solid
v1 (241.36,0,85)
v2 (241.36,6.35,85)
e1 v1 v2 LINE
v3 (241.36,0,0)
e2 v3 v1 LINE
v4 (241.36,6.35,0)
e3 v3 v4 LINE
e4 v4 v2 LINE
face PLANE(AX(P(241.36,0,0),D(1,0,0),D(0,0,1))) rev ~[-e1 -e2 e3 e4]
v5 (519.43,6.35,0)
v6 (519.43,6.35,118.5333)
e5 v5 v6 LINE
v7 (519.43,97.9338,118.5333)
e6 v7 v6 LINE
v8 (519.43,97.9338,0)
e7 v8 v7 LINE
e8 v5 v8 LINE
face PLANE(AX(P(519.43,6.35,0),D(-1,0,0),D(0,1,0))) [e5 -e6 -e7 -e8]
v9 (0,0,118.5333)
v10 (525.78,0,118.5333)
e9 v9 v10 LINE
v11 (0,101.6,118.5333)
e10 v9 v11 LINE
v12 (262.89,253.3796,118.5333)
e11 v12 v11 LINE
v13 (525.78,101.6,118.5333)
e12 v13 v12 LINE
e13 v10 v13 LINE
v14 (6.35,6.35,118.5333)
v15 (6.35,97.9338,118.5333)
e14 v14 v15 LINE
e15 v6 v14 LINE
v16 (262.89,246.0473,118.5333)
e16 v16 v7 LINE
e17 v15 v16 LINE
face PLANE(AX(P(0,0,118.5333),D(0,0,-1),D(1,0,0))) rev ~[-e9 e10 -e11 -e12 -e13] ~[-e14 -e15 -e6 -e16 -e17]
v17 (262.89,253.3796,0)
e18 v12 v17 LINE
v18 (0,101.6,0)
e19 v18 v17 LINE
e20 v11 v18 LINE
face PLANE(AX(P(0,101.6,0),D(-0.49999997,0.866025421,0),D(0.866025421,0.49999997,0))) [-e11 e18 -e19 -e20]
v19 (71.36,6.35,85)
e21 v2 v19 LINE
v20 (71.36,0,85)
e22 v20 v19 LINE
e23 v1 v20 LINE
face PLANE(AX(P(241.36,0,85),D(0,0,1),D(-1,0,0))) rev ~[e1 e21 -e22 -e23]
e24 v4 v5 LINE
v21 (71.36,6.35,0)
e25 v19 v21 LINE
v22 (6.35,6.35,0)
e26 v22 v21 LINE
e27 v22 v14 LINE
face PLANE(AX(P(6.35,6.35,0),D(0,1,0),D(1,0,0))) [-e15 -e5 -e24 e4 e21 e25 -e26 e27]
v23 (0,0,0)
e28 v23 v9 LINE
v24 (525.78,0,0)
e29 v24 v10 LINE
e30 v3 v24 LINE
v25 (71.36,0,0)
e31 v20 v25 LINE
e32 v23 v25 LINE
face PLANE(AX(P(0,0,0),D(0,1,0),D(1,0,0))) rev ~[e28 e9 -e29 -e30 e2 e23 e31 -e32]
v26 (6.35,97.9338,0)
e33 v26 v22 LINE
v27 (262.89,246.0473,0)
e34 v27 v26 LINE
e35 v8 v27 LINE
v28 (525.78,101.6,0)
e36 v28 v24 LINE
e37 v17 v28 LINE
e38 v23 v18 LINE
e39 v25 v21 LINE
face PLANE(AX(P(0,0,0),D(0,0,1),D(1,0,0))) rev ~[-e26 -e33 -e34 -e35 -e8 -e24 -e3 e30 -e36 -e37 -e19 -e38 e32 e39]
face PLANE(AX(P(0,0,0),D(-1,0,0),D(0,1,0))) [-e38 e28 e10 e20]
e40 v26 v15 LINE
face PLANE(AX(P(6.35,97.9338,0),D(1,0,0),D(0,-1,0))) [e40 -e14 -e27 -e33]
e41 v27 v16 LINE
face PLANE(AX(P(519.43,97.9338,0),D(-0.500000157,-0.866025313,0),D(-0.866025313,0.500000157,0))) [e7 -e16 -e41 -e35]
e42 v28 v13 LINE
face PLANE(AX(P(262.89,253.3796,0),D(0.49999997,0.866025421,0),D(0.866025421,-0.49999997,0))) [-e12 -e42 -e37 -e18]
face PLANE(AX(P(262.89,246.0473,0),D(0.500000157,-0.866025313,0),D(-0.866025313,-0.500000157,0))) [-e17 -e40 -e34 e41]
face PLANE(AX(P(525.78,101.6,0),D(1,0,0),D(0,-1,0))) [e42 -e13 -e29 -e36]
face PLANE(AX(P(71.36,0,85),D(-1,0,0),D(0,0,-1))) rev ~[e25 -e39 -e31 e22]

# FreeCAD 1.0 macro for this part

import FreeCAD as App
import Part
import Sketcher
Q = App.Units.Quantity

doc = App.newDocument("Part")
body = doc.addObject("PartDesign::Body", "Body")

sketch1 = doc.addObject("Sketcher::SketchObject", "Sketch")
body.addObject(sketch1)
sketch1.AttachmentSupport = (doc.XY_Plane, [""])
sketch1.MapMode = "FlatFace"
sketch1.addGeometry(Part.LineSegment(App.Vector(0, 102, 0), App.Vector(0, 0, 0)), False)
sketch1.addGeometry(Part.LineSegment(App.Vector(0, 0, 0), App.Vector(526, 0, 0)), False)
sketch1.addGeometry(Part.LineSegment(App.Vector(526, 0, 0), App.Vector(526, 102, 0)), False)
sketch1.addGeometry(Part.LineSegment(App.Vector(526, 102, 0), App.Vector(263, 253, 0)), False)
sketch1.addGeometry(Part.LineSegment(App.Vector(263, 253, 0), App.Vector(0, 102, 0)), False)
sketch1.addGeometry(Part.LineSegment(App.Vector(6, 98, 0), App.Vector(263, 246, 0)), False)
sketch1.addGeometry(Part.LineSegment(App.Vector(263, 246, 0), App.Vector(519, 98, 0)), False)
sketch1.addGeometry(Part.LineSegment(App.Vector(519, 98, 0), App.Vector(519, 6, 0)), False)
sketch1.addGeometry(Part.LineSegment(App.Vector(519, 6, 0), App.Vector(6, 6, 0)), False)
sketch1.addGeometry(Part.LineSegment(App.Vector(6, 6, 0), App.Vector(6, 98, 0)), False)
sketch1.addConstraint(Sketcher.Constraint("Coincident", 0, 2, 1, 1))
sketch1.addConstraint(Sketcher.Constraint("Coincident", 1, 2, 2, 1))
sketch1.addConstraint(Sketcher.Constraint("Coincident", 2, 2, 3, 1))
sketch1.addConstraint(Sketcher.Constraint("Coincident", 3, 2, 4, 1))
sketch1.addConstraint(Sketcher.Constraint("Coincident", 4, 2, 0, 1))
sketch1.addConstraint(Sketcher.Constraint("Coincident", 5, 2, 6, 1))
sketch1.addConstraint(Sketcher.Constraint("Coincident", 6, 2, 7, 1))
sketch1.addConstraint(Sketcher.Constraint("Coincident", 7, 2, 8, 1))
sketch1.addConstraint(Sketcher.Constraint("Coincident", 8, 2, 9, 1))
sketch1.addConstraint(Sketcher.Constraint("Coincident", 9, 2, 5, 1))
sketch1.addConstraint(Sketcher.Constraint("Vertical", 0))
sketch1.addConstraint(Sketcher.Constraint("Horizontal", 1))
sketch1.addConstraint(Sketcher.Constraint("Vertical", 2))
sketch1.addConstraint(Sketcher.Constraint("Vertical", 7))
sketch1.addConstraint(Sketcher.Constraint("Horizontal", 8))
sketch1.addConstraint(Sketcher.Constraint("Vertical", 9))
sketch1.addConstraint(Sketcher.Constraint("Coincident", 0, 2, -1, 1))
sketch1.addConstraint(Sketcher.Constraint("Parallel", 4, 5))
sketch1.addConstraint(Sketcher.Constraint("Parallel", 3, 6))
sketch1.addConstraint(Sketcher.Constraint("Horizontal", 2, 2, 4, 2))
sketch1.addConstraint(Sketcher.Constraint("Horizontal", 6, 2, 9, 2))
sketch1.addConstraint(Sketcher.Constraint("Vertical", 3, 2, 5, 2))
sketch1.addConstraint(Sketcher.Constraint("Equal", 3, 4))
sketch1.addConstraint(Sketcher.Constraint("DistanceY", 0, 2, 0, 1, Q("4 in")))
sketch1.addConstraint(Sketcher.Constraint("DistanceX", 1, 1, 1, 2, Q("20.7 in")))
sketch1.addConstraint(Sketcher.Constraint("DistanceY", -1, 1, 7, 2, Q("0.25 in")))
sketch1.addConstraint(Sketcher.Constraint("DistanceX", -1, 1, 8, 2, Q("0.25 in")))
sketch1.addConstraint(Sketcher.Constraint("Angle", 3, Q("150 deg")))
sketch1.addConstraint(Sketcher.Constraint("DistanceY", 7, 2, 7, 1, 91.5838))
pad1 = doc.addObject("PartDesign::Pad", "Pad")
body.addObject(pad1)
pad1.Profile = sketch1
pad1.Length = Q("14 in")

sketch2 = doc.addObject("Sketcher::SketchObject", "Sketch001")
body.addObject(sketch2)
sketch2.AttachmentSupport = (doc.XY_Plane, [""])
sketch2.MapMode = "FlatFace"
sketch2.AttachmentOffset = App.Placement(App.Vector(0, 0, 14 * 25.4), App.Rotation())
sketch2.addGeometry(Part.LineSegment(App.Vector(0, 102, 0), App.Vector(0, 0, 0)), False)
sketch2.addGeometry(Part.LineSegment(App.Vector(0, 0, 0), App.Vector(526, 0, 0)), False)
sketch2.addGeometry(Part.LineSegment(App.Vector(526, 0, 0), App.Vector(526, 102, 0)), False)
sketch2.addGeometry(Part.LineSegment(App.Vector(526, 102, 0), App.Vector(263, 253, 0)), False)
sketch2.addGeometry(Part.LineSegment(App.Vector(263, 253, 0), App.Vector(0, 102, 0)), False)
sketch2.addGeometry(Part.Circle(App.Vector(263, 121, 0), App.Vector(0, 0, 1), 60), False)
sketch2.addConstraint(Sketcher.Constraint("Coincident", 0, 2, 1, 1))
sketch2.addConstraint(Sketcher.Constraint("Coincident", 1, 2, 2, 1))
sketch2.addConstraint(Sketcher.Constraint("Coincident", 2, 2, 3, 1))
sketch2.addConstraint(Sketcher.Constraint("Coincident", 3, 2, 4, 1))
sketch2.addConstraint(Sketcher.Constraint("Coincident", 4, 2, 0, 1))
sketch2.addConstraint(Sketcher.Constraint("Vertical", 0))
sketch2.addConstraint(Sketcher.Constraint("Horizontal", 1))
sketch2.addConstraint(Sketcher.Constraint("Vertical", 2))
sketch2.addConstraint(Sketcher.Constraint("Coincident", 0, 2, -1, 1))
sketch2.addConstraint(Sketcher.Constraint("Horizontal", 2, 2, 4, 2))
sketch2.addConstraint(Sketcher.Constraint("Vertical", 5, 3, 3, 2))
sketch2.addConstraint(Sketcher.Constraint("Equal", 3, 4))
sketch2.addConstraint(Sketcher.Constraint("Diameter", 5, Q("4.7244 in")))
sketch2.addConstraint(Sketcher.Constraint("DistanceY", 0, 2, 0, 1, Q("4 in")))
sketch2.addConstraint(Sketcher.Constraint("DistanceX", 1, 1, 1, 2, Q("20.7 in")))
sketch2.addConstraint(Sketcher.Constraint("Angle", 3, Q("150 deg")))
sketch2.addConstraint(Sketcher.Constraint("DistanceY", 5, 3, 3, 2, 132.0))
pad2 = doc.addObject("PartDesign::Pad", "Pad001")
body.addObject(pad2)
pad2.Profile = sketch2
pad2.Length = Q("0.25 in")

sketch3 = doc.addObject("Sketcher::SketchObject", "Sketch002")
body.addObject(sketch3)
sketch3.AttachmentSupport = (doc.XZ_Plane, [""])
sketch3.MapMode = "FlatFace"
sketch3.addGeometry(Part.Circle(App.Vector(86.4, 44.5, 0), App.Vector(0, 0, 1), 2.4), False)
sketch3.addGeometry(Part.Circle(App.Vector(86.4, 21.9, 0), App.Vector(0, 0, 1), 2.4), False)
sketch3.addGeometry(Part.Circle(App.Vector(86.4, 67, 0), App.Vector(0, 0, 1), 2.4), False)
sketch3.addGeometry(Part.Circle(App.Vector(226.4, 67, 0), App.Vector(0, 0, 1), 2.4), False)
sketch3.addGeometry(Part.Circle(App.Vector(226.4, 44.5, 0), App.Vector(0, 0, 1), 2.4), False)
sketch3.addGeometry(Part.Circle(App.Vector(226.4, 21.9, 0), App.Vector(0, 0, 1), 2.4), False)
sketch3.addGeometry(Part.Circle(App.Vector(156.4, 39.5, 0), App.Vector(0, 0, 1), 10), False)
sketch3.addConstraint(Sketcher.Constraint("Equal", 0, 1))
sketch3.addConstraint(Sketcher.Constraint("Equal", 1, 2))
sketch3.addConstraint(Sketcher.Constraint("Equal", 2, 3))
sketch3.addConstraint(Sketcher.Constraint("Equal", 3, 4))
sketch3.addConstraint(Sketcher.Constraint("Equal", 4, 5))
sketch3.addConstraint(Sketcher.Constraint("Horizontal", 2, 3, 3, 3))
sketch3.addConstraint(Sketcher.Constraint("Horizontal", 0, 3, 4, 3))
sketch3.addConstraint(Sketcher.Constraint("Horizontal", 1, 3, 5, 3))
sketch3.addConstraint(Sketcher.Constraint("Vertical", 0, 3, 1, 3))
sketch3.addConstraint(Sketcher.Constraint("Vertical", 1, 3, 2, 3))
sketch3.addConstraint(Sketcher.Constraint("Vertical", 3, 3, 4, 3))
sketch3.addConstraint(Sketcher.Constraint("Vertical", 4, 3, 5, 3))
sketch3.addConstraint(Sketcher.Constraint("Diameter", 0, Q("0.1875 in")))
sketch3.addConstraint(Sketcher.Constraint("Diameter", 6, Q("0.7874 in")))
sketch3.addConstraint(Sketcher.Constraint("DistanceX", -1, 1, 0, 3, Q("3.4 in")))
sketch3.addConstraint(Sketcher.Constraint("DistanceX", 2, 3, 3, 3, Q("5.5118 in")))
sketch3.addConstraint(Sketcher.Constraint("DistanceY", -1, 1, 0, 3, Q("1.75 in")))
sketch3.addConstraint(Sketcher.Constraint("DistanceY", 1, 3, 2, 3, 45.0))
sketch3.addConstraint(Sketcher.Constraint("DistanceX", -1, 1, 6, 3, Q("6.1559 in")))
sketch3.addConstraint(Sketcher.Constraint("DistanceY", -1, 1, 1, 3, 21.95))
sketch3.addConstraint(Sketcher.Constraint("DistanceY", -1, 1, 6, 3, 39.45))
pocket1 = doc.addObject("PartDesign::Pocket", "Pocket")
body.addObject(pocket1)
pocket1.Profile = sketch3
pocket1.Length = Q("0.25 in")

sketch4 = doc.addObject("Sketcher::SketchObject", "Sketch003")
body.addObject(sketch4)
sketch4.AttachmentSupport = (doc.XZ_Plane, [""])
sketch4.MapMode = "FlatFace"
sketch4.addGeometry(Part.LineSegment(App.Vector(71, 85, 0), App.Vector(71, 0, 0)), False)
sketch4.addGeometry(Part.LineSegment(App.Vector(71, 0, 0), App.Vector(241, 0, 0)), False)
sketch4.addGeometry(Part.LineSegment(App.Vector(241, 0, 0), App.Vector(241, 85, 0)), False)
sketch4.addGeometry(Part.LineSegment(App.Vector(241, 85, 0), App.Vector(71, 85, 0)), False)
sketch4.addConstraint(Sketcher.Constraint("Coincident", 0, 2, 1, 1))
sketch4.addConstraint(Sketcher.Constraint("Coincident", 1, 2, 2, 1))
sketch4.addConstraint(Sketcher.Constraint("Coincident", 2, 2, 3, 1))
sketch4.addConstraint(Sketcher.Constraint("Coincident", 3, 2, 0, 1))
sketch4.addConstraint(Sketcher.Constraint("Vertical", 0))
sketch4.addConstraint(Sketcher.Constraint("Horizontal", 1))
sketch4.addConstraint(Sketcher.Constraint("Vertical", 2))
sketch4.addConstraint(Sketcher.Constraint("Horizontal", 3))
sketch4.addConstraint(Sketcher.Constraint("PointOnObject", 0, 2, -1))
sketch4.addConstraint(Sketcher.Constraint("DistanceX", 1, 1, 1, 2, 170.0))
sketch4.addConstraint(Sketcher.Constraint("DistanceY", 0, 2, 0, 1, 85.0))
sketch4.addConstraint(Sketcher.Constraint("DistanceX", -1, 1, 0, 2, 71.36))
pocket2 = doc.addObject("PartDesign::Pocket", "Pocket001")
body.addObject(pocket2)
pocket2.Profile = sketch4
pocket2.Length = Q("0.25 in")

sketch5 = doc.addObject("Sketcher::SketchObject", "Sketch004")
body.addObject(sketch5)
sketch5.AttachmentSupport = (doc.XZ_Plane, [""])
sketch5.MapMode = "FlatFace"
sketch5.addGeometry(Part.LineSegment(App.Vector(0, 119, 0), App.Vector(526, 119, 0)), False)
sketch5.addGeometry(Part.LineSegment(App.Vector(526, 119, 0), App.Vector(526, 362, 0)), False)
sketch5.addGeometry(Part.LineSegment(App.Vector(526, 362, 0), App.Vector(0, 362, 0)), False)
sketch5.addGeometry(Part.LineSegment(App.Vector(0, 362, 0), App.Vector(0, 119, 0)), False)
sketch5.addConstraint(Sketcher.Constraint("Coincident", 0, 2, 1, 1))
sketch5.addConstraint(Sketcher.Constraint("Coincident", 1, 2, 2, 1))
sketch5.addConstraint(Sketcher.Constraint("Coincident", 2, 2, 3, 1))
sketch5.addConstraint(Sketcher.Constraint("Coincident", 3, 2, 0, 1))
sketch5.addConstraint(Sketcher.Constraint("Horizontal", 0))
sketch5.addConstraint(Sketcher.Constraint("Vertical", 1))
sketch5.addConstraint(Sketcher.Constraint("Horizontal", 2))
sketch5.addConstraint(Sketcher.Constraint("Vertical", 3))
sketch5.addConstraint(Sketcher.Constraint("PointOnObject", 2, 2, -2))
sketch5.addConstraint(Sketcher.Constraint("DistanceX", 0, 1, 0, 2, Q("20.7 in")))
sketch5.addConstraint(Sketcher.Constraint("DistanceY", -1, 1, 0, 2, 118.5333))
sketch5.addConstraint(Sketcher.Constraint("DistanceY", -1, 1, 1, 2, Q("14.25 in")))
pocket3 = doc.addObject("PartDesign::Pocket", "Pocket002")
body.addObject(pocket3)
pocket3.Profile = sketch5
pocket3.Type = "ThroughAll"

doc.recompute()
